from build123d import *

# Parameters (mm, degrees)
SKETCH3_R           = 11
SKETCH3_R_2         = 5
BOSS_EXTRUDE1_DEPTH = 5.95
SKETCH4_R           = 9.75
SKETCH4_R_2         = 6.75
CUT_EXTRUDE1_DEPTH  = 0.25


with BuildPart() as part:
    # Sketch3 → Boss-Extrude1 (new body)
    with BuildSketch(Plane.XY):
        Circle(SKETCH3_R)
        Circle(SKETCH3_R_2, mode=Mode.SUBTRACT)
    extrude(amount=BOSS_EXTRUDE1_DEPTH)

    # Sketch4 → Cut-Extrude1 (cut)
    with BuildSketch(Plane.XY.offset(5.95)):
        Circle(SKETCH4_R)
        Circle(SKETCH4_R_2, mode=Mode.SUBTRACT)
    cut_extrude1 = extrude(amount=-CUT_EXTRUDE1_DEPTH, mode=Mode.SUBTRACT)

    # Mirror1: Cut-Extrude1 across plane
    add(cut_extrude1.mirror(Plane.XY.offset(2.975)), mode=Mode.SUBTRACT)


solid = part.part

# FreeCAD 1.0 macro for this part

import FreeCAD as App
import Part
import Sketcher

V = App.Vector

doc = App.newDocument("Part")
params = doc.addObject("Spreadsheet::Sheet", "Params")
for row, (alias, value) in enumerate([
    ("sketch1_diameter", "22 mm"),
    ("sketch1_diameter2", "10 mm"),
    ("pad1_length", "5.95 mm"),
    ("sketch2_diameter", "19.5 mm"),
    ("sketch2_diameter2", "13.5 mm"),
    ("pocket1_length", "0.25 mm"),
], start=1):
    params.set(f"A{row}", alias)
    params.set(f"B{row}", "=" + value)
    params.setAlias(f"B{row}", alias)

body = doc.addObject("PartDesign::Body", "Body")

sketch1 = body.newObject("Sketcher::SketchObject", "Sketch")
sketch1.AttachmentSupport = (doc.getObject("XY_Plane"), [""])
sketch1.MapMode = "FlatFace"
sketch1.addGeometry([
    Part.Circle(V(0, 0, 0), V(0, 0, 1), 11),
    Part.Circle(V(0, 0, 0), V(0, 0, 1), 5),
], False)
sketch1.addConstraint([
    Sketcher.Constraint("Coincident", 0, 3, -1, 1),
    Sketcher.Constraint("Coincident", 1, 3, -1, 1),
    Sketcher.Constraint("Diameter", 0, 22.0),
    Sketcher.Constraint("Diameter", 1, 10.0),
])
sketch1.setExpression("Constraints[2]", "Params.sketch1_diameter")
sketch1.setExpression("Constraints[3]", "Params.sketch1_diameter2")
pad1 = body.newObject("PartDesign::Pad", "Pad")
pad1.Profile = sketch1
pad1.setExpression("Length", "Params.pad1_length")

sketch2 = body.newObject("Sketcher::SketchObject", "Sketch001")
sketch2.AttachmentSupport = (doc.getObject("XY_Plane"), [""])
sketch2.MapMode = "FlatFace"
sketch2.AttachmentOffset = App.Placement(V(0, 0, 5.95), App.Rotation())
sketch2.addGeometry([
    Part.Circle(V(0, 0, 0), V(0, 0, 1), 10),
    Part.Circle(V(0, 0, 0), V(0, 0, 1), 7),
], False)
sketch2.addConstraint([
    Sketcher.Constraint("Coincident", 0, 3, -1, 1),
    Sketcher.Constraint("Coincident", 1, 3, -1, 1),
    Sketcher.Constraint("Diameter", 0, 19.5),
    Sketcher.Constraint("Diameter", 1, 13.5),
])
sketch2.setExpression("Constraints[2]", "Params.sketch2_diameter")
sketch2.setExpression("Constraints[3]", "Params.sketch2_diameter2")
pocket1 = body.newObject("PartDesign::Pocket", "Pocket")
pocket1.Profile = sketch2
pocket1.setExpression("Length", "Params.pocket1_length")
doc.recompute()

datumplane = body.newObject("PartDesign::Plane", "DatumPlane")
datumplane.AttachmentSupport = (doc.getObject("XY_Plane"), [""])
datumplane.MapMode = "FlatFace"
datumplane.AttachmentOffset = App.Placement(V(0, 0, 2.975), App.Rotation())
mirrored = body.newObject("PartDesign::Mirrored", "Mirrored")
mirrored.Originals = [pocket1]
mirrored.MirrorPlane = (datumplane, [""])
body.Tip = mirrored

doc.recompute()
